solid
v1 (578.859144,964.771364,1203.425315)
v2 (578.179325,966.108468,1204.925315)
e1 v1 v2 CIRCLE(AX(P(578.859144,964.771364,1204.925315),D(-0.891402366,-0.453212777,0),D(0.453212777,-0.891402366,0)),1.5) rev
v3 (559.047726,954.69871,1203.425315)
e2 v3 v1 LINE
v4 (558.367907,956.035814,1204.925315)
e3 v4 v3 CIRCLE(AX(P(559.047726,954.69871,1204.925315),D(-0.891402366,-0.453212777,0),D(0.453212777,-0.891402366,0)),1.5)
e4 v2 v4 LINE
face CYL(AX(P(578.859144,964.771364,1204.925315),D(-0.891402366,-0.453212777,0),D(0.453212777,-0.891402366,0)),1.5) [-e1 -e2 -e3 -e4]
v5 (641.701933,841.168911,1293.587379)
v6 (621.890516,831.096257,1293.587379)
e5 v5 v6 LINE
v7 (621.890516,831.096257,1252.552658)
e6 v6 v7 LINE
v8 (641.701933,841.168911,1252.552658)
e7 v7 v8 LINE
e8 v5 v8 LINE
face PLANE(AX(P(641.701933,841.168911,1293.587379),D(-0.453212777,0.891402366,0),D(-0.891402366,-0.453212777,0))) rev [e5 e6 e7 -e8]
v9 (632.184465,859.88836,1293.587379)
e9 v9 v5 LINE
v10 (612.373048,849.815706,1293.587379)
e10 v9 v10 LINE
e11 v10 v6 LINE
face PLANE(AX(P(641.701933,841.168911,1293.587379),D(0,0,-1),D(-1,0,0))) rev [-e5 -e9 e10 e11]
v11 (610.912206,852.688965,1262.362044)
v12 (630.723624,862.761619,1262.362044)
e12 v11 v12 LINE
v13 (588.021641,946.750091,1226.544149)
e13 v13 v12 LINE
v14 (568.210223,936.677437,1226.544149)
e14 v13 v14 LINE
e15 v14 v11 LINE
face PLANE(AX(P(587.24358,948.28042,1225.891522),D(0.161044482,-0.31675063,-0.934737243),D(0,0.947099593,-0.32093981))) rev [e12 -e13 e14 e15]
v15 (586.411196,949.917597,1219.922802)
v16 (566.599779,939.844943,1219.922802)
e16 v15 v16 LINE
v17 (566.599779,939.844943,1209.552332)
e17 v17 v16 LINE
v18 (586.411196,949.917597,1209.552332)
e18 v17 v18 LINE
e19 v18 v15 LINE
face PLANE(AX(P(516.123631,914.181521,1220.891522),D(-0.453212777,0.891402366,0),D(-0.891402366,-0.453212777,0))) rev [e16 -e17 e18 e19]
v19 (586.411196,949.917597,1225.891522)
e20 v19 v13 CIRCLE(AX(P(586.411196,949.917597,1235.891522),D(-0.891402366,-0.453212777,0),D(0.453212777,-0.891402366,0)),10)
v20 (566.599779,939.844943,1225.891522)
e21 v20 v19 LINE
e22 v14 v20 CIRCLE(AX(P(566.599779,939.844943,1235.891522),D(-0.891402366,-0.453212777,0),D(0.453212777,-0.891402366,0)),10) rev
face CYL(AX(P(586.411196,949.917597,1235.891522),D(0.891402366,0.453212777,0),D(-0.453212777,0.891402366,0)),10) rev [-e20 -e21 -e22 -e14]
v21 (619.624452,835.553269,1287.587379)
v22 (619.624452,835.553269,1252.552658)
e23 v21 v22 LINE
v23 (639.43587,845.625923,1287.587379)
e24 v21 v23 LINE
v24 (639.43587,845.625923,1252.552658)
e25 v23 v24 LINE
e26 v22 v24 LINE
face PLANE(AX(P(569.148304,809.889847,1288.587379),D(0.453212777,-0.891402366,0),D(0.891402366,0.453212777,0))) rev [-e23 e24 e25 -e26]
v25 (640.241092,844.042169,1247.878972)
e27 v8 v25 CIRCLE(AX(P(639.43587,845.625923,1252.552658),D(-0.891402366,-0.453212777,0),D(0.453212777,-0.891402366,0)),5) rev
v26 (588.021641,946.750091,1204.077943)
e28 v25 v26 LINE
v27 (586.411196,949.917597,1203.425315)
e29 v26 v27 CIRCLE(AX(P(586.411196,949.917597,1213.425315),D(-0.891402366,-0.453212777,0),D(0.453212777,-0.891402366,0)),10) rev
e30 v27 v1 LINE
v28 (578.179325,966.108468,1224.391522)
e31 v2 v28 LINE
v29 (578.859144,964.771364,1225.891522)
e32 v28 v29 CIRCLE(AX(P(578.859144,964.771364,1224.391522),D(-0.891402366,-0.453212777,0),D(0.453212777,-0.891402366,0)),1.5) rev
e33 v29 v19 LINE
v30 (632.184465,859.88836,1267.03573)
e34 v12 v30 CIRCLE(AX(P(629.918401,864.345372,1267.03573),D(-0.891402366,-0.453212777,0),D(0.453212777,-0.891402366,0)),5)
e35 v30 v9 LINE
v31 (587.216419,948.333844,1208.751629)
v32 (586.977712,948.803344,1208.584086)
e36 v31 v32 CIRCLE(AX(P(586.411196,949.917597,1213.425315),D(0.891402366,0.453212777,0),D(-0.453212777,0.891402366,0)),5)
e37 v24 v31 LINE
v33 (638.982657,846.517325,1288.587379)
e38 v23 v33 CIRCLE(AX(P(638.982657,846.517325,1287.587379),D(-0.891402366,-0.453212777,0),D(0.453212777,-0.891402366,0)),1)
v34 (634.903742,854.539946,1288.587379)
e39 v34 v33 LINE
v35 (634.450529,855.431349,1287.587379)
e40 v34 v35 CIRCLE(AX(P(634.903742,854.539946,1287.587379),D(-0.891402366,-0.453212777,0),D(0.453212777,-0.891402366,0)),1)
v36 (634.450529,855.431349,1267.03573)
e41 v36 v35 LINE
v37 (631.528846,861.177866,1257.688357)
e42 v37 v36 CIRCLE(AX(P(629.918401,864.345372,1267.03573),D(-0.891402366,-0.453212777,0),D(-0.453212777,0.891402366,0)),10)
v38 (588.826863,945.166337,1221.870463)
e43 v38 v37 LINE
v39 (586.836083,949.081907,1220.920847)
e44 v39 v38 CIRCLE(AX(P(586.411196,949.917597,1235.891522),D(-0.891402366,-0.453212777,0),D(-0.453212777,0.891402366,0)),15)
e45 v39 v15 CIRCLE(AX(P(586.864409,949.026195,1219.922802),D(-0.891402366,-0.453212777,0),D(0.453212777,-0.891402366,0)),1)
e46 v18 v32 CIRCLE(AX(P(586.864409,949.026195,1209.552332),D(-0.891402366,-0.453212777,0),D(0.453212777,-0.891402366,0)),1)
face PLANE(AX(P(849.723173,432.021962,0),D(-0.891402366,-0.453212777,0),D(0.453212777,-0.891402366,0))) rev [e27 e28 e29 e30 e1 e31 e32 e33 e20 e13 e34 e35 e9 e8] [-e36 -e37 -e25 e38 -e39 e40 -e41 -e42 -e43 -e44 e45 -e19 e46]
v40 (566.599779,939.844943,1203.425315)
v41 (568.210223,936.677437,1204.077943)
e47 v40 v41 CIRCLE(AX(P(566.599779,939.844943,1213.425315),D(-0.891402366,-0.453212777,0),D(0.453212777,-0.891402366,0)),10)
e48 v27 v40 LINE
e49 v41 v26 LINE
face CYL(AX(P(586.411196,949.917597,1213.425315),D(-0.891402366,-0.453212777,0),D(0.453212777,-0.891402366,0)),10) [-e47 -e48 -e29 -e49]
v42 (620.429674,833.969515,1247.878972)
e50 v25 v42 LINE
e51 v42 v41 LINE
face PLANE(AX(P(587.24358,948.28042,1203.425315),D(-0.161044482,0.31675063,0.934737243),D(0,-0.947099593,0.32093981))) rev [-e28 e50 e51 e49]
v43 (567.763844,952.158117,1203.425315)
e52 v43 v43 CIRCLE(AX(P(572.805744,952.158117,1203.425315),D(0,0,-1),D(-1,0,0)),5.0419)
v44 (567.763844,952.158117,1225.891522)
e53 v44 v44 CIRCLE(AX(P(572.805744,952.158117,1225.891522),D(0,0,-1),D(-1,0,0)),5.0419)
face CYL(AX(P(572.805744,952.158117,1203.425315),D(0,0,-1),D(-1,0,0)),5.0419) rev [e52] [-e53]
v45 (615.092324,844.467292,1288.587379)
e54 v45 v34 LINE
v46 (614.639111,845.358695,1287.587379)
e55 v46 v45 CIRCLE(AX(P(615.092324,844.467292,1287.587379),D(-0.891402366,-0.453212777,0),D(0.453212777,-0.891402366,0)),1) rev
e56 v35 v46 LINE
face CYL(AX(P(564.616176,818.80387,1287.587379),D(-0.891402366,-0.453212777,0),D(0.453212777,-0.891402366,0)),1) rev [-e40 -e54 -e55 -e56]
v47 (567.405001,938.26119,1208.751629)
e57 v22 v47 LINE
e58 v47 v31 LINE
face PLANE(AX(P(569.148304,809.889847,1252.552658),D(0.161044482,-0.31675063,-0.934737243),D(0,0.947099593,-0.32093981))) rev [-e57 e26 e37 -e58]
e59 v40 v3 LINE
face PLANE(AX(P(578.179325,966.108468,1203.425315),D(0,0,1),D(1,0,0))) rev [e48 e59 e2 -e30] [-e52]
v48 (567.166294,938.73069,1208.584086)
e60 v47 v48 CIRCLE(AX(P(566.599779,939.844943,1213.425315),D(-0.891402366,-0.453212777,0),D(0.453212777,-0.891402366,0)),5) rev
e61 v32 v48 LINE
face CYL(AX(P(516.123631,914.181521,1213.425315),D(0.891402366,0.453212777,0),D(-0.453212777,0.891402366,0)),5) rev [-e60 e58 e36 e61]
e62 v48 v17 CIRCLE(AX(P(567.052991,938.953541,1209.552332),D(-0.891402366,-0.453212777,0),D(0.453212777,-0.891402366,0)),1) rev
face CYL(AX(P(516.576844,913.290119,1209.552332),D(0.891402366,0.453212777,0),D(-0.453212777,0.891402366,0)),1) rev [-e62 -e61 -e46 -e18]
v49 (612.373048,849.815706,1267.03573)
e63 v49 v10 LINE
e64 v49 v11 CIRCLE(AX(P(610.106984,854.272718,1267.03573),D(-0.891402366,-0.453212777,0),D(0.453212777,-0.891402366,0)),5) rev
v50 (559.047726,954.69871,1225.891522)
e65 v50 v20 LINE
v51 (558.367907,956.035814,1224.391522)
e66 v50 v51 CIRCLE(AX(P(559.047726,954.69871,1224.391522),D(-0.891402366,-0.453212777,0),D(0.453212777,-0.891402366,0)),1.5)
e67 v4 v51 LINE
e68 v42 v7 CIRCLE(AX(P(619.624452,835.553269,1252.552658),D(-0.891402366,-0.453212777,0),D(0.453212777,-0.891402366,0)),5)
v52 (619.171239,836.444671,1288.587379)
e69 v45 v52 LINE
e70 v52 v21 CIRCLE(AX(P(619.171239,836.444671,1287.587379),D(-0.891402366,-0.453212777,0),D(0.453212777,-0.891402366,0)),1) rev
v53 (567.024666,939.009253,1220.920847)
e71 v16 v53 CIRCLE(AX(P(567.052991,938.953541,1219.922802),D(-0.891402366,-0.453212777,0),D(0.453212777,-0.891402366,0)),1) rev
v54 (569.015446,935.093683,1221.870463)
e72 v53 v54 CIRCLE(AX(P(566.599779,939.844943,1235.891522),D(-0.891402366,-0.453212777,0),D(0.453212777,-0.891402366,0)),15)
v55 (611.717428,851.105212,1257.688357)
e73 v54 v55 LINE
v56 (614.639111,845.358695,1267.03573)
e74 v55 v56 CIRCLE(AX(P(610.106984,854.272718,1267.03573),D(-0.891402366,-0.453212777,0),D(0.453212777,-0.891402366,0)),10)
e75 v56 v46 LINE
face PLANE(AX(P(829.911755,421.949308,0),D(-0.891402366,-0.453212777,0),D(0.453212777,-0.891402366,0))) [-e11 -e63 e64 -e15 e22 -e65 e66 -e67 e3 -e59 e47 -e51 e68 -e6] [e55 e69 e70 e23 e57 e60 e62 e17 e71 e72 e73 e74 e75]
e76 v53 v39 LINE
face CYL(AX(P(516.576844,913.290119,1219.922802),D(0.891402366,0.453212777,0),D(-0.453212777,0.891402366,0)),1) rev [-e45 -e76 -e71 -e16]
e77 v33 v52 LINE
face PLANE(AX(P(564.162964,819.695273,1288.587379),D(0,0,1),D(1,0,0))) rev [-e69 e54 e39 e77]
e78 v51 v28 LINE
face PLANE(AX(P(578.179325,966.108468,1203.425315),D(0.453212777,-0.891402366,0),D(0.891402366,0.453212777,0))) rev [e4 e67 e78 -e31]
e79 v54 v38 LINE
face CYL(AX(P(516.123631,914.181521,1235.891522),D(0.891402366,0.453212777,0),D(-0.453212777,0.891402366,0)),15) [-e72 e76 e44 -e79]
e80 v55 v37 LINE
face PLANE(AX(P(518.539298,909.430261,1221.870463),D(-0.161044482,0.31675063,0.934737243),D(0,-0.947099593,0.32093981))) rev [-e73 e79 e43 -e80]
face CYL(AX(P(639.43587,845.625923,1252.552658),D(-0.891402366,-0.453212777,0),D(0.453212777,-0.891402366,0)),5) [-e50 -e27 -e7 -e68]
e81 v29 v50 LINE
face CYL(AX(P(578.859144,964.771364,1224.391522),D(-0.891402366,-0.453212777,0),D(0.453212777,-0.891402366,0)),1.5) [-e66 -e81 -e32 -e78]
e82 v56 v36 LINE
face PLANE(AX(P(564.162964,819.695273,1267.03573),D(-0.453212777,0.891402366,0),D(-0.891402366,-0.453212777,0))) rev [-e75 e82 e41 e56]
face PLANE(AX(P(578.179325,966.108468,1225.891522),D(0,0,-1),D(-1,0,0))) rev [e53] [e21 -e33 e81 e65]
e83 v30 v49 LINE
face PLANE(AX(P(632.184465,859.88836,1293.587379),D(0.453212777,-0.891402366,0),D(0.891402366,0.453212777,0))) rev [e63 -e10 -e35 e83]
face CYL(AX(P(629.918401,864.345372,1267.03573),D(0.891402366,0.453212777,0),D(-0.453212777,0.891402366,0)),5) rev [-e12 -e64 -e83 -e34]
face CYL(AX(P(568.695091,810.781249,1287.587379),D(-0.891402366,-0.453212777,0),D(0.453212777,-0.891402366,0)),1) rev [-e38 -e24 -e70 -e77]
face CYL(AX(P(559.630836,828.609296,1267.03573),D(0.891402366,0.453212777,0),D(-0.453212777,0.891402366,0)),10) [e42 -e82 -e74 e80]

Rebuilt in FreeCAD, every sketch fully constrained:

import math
import FreeCAD as App
import Part
import Sketcher
Q = App.Units.Quantity


def edges_at(feature, points):
    """Names of the edges that pass closest to the given points."""
    edges = feature.Shape.Edges
    near = lambda p: min(range(len(edges)), key=lambda i: edges[i].distToShape(Part.Vertex(*p))[0])
    return sorted({f"Edge{near(p) + 1}" for p in points})


def add_polygon(sketch, points):
    """Adds a closed chain of lines whose ends are joined by coincident constraints."""
    first, n = sketch.GeometryCount, len(points)
    for a, b in zip(points, points[1:] + points[:1]):
        sketch.addGeometry(Part.LineSegment(App.Vector(*a, 0), App.Vector(*b, 0)), False)
    for i in range(n):
        sketch.addConstraint(Sketcher.Constraint("Coincident", first + i, 2, first + (i + 1) % n, 1))

doc = App.newDocument("Part")
body = doc.addObject("PartDesign::Body", "Body")

# Sketch on an angled plane
sketch1 = body.newObject("Sketcher::SketchObject", "Sketch")
sketch1.Placement = App.Placement(App.Vector(839.854693, 426.912411, 0), App.Rotation(App.Vector(0, 0, -1), App.Vector(-0.453212777, 0.891402366, 0), App.Vector(0.891402366, 0.453212777, 0), "ZXY"))
add_polygon(sketch1, [(-1293.587379, 480.074586), (-1293.587379, 459.074586), (-1249.104307, 459.074586), (-1203.425315, 579.235261), (-1203.425315, 599.235261), (-1225.891522, 599.235261), (-1225.891522, 579.235261), (-1263.587379, 480.074586)])  # lines 0-7
sketch1.addConstraint(Sketcher.Constraint("Vertical", 0))
sketch1.addConstraint(Sketcher.Constraint("Horizontal", 1))
sketch1.addConstraint(Sketcher.Constraint("Vertical", 3))
sketch1.addConstraint(Sketcher.Constraint("Horizontal", 4))
sketch1.addConstraint(Sketcher.Constraint("Vertical", 5))
sketch1.addConstraint(Sketcher.Constraint("Horizontal", 7))
sketch1.addConstraint(Sketcher.Constraint("Parallel", 2, 6))
sketch1.addConstraint(Sketcher.Constraint("Horizontal", 2, 2, 5, 2))
sketch1.addConstraint(Sketcher.Constraint("DistanceX", 7, 2, 7, 1, Q("30 mm")))
sketch1.addConstraint(Sketcher.Constraint("DistanceY", 0, 2, 0, 1, Q("21 mm")))
sketch1.addConstraint(Sketcher.Constraint("DistanceY", 3, 1, 3, 2, Q("20 mm")))
sketch1.addConstraint(Sketcher.Constraint("DistanceX", 1, 1, 1, 2, Q("44.483072 mm")))
sketch1.addConstraint(Sketcher.Constraint("Distance", 6, Q("106.08401 mm")))
sketch1.addConstraint(Sketcher.Constraint("DistanceX", 4, 2, 4, 1, Q("22.466207 mm")))
sketch1.addConstraint(Sketcher.Constraint("DistanceX", 0, 2, -1, 1, Q("1293.587379 mm")))
sketch1.addConstraint(Sketcher.Constraint("DistanceY", -1, 1, 2, 2, Q("579.235261 mm")))
pad1 = body.newObject("PartDesign::Pad", "Pad")
pad1.Profile = sketch1
pad1.Length = 22.225
pad1.Midplane = True

# Sketch on XY plane
sketch2 = body.newObject("Sketcher::SketchObject", "Sketch001")
sketch2.AttachmentSupport = (doc.getObject("XY_Plane"), [""])
sketch2.MapMode = "FlatFace"
sketch2.AttachmentOffset = App.Placement(App.Vector(0, 0, 1203.425315), App.Rotation())
sketch2.addGeometry(Part.Circle(App.Vector(572.805744, 952.158117, 0), App.Vector(0, 0, 1), 5.0419), False)
sketch2.addConstraint(Sketcher.Constraint("Diameter", 0, Q("10.0838 mm")))
sketch2.addConstraint(Sketcher.Constraint("DistanceX", -1, 1, 0, 3, Q("572.805744 mm")))
sketch2.addConstraint(Sketcher.Constraint("DistanceY", -1, 1, 0, 3, Q("952.158117 mm")))
doc.recompute()
hole = body.newObject("PartDesign::Hole", "Hole")
hole.Profile = sketch2
hole.ThreadType = "None"
hole.Diameter = 10.0838
hole.DepthType = "ThroughAll"
hole.Reversed = True
doc.recompute()

fillet = body.newObject("PartDesign::Fillet", "Fillet")
fillet.Base = (hole, edges_at(hole, [(577.338, 943.244, 1225.892), (577.338, 943.244, 1203.425)]))
fillet.Radius = 10
doc.recompute()

fillet2 = body.newObject("PartDesign::Fillet", "Fillet001")
fillet2.Base = (fillet, edges_at(fillet, [(622.279, 854.852, 1263.587), (631.796, 836.133, 1249.104)]))
fillet2.Radius = 5
doc.recompute()

fillet3 = body.newObject("PartDesign::Fillet", "Fillet002")
fillet3.Base = (fillet2, edges_at(fillet2, [(568.274, 961.072, 1225.892), (568.274, 961.072, 1203.425)]))
fillet3.Radius = 1.5

# Sketch on an angled plane
sketch3 = body.newObject("Sketcher::SketchObject", "Sketch002")
sketch3.Placement = App.Placement(App.Vector(849.723173, 432.021962, 0), App.Rotation(App.Vector(0, 0, -1), App.Vector(-0.453212777, 0.891402366, 0), App.Vector(0.891402366, 0.453212777, 0), "ZXY"))
sketch3.addGeometry(Part.LineSegment(App.Vector(-1208.425315, 580.989747, 0), App.Vector(-1220.891522, 580.989747, 0)), False)
sketch3.addGeometry(Part.ArcOfCircle(Part.Circle(App.Vector(-1235.891522, 580.989747, 0), App.Vector(0, 0, 1), 15), math.radians(-20.814264), math.radians(0)), False)
sketch3.addGeometry(Part.LineSegment(App.Vector(-1221.870463, 575.659651, 0), App.Vector(-1257.688357, 481.439045, 0)), False)
sketch3.addGeometry(Part.ArcOfCircle(Part.Circle(App.Vector(-1267.03573, 484.992442, 0), App.Vector(0, 0, 1), 10), math.radians(-90), math.radians(-20.814264)), False)
sketch3.addGeometry(Part.LineSegment(App.Vector(-1267.03573, 474.992442, 0), App.Vector(-1288.587379, 474.992442, 0)), False)
sketch3.addGeometry(Part.LineSegment(App.Vector(-1288.587379, 474.992442, 0), App.Vector(-1288.587379, 463.992442, 0)), False)
sketch3.addGeometry(Part.LineSegment(App.Vector(-1288.587379, 463.992442, 0), App.Vector(-1252.552658, 463.992442, 0)), False)
sketch3.addGeometry(Part.LineSegment(App.Vector(-1252.552658, 463.992442, 0), App.Vector(-1208.751629, 579.213048, 0)), False)
sketch3.addGeometry(Part.ArcOfCircle(Part.Circle(App.Vector(-1213.425315, 580.989747, 0), App.Vector(0, 0, 1), 5), math.radians(-20.814264), math.radians(0)), False)
sketch3.addConstraint(Sketcher.Constraint("Coincident", 0, 2, 1, 2))
sketch3.addConstraint(Sketcher.Constraint("Tangent", 1, 1, 2, 1))
sketch3.addConstraint(Sketcher.Constraint("Tangent", 2, 2, 3, 2))
sketch3.addConstraint(Sketcher.Constraint("Tangent", 3, 1, 4, 1))
sketch3.addConstraint(Sketcher.Constraint("Coincident", 4, 2, 5, 1))
sketch3.addConstraint(Sketcher.Constraint("Coincident", 5, 2, 6, 1))
sketch3.addConstraint(Sketcher.Constraint("Coincident", 6, 2, 7, 1))
sketch3.addConstraint(Sketcher.Constraint("Tangent", 7, 2, 8, 1))
sketch3.addConstraint(Sketcher.Constraint("Coincident", 8, 2, 0, 1))
sketch3.addConstraint(Sketcher.Constraint("Horizontal", 0))
sketch3.addConstraint(Sketcher.Constraint("Horizontal", 4))
sketch3.addConstraint(Sketcher.Constraint("Vertical", 5))
sketch3.addConstraint(Sketcher.Constraint("Horizontal", 6))
sketch3.addConstraint(Sketcher.Constraint("Parallel", 2, 7))
sketch3.addConstraint(Sketcher.Constraint("Horizontal", 1, 3, 8, 3))
sketch3.addConstraint(Sketcher.Constraint("Horizontal", 8, 3, 0, 2))
sketch3.addConstraint(Sketcher.Constraint("Radius", 1, Q("15 mm")))
sketch3.addConstraint(Sketcher.Constraint("Radius", 3, Q("10 mm")))
sketch3.addConstraint(Sketcher.Constraint("Radius", 8, Q("5 mm")))
sketch3.addConstraint(Sketcher.Constraint("DistanceY", 5, 2, 5, 1, Q("11 mm")))
sketch3.addConstraint(Sketcher.Constraint("DistanceX", 4, 2, 4, 1, Q("21.55165 mm")))
sketch3.addConstraint(Sketcher.Constraint("DistanceX", 6, 1, 6, 2, Q("36.034721 mm")))
sketch3.addConstraint(Sketcher.Constraint("DistanceY", 2, 2, 1, 3, Q("99.550702 mm")))
sketch3.addConstraint(Sketcher.Constraint("DistanceX", 2, 2, 6, 2, Q("5.1357 mm")))
sketch3.addConstraint(Sketcher.Constraint("DistanceX", 1, 3, -1, 1, Q("1235.891522 mm")))
sketch3.addConstraint(Sketcher.Constraint("DistanceY", -1, 1, 3, 3, Q("484.992442 mm")))
pocket1 = body.newObject("PartDesign::Pocket", "Pocket")
pocket1.Profile = sketch3
pocket1.Type = "UpToFirst"
doc.recompute()

fillet4 = body.newObject("PartDesign::Fillet", "Fillet003")
fillet4.Base = (pocket1, edges_at(pocket1, [
    (576.505, 944.881, 1208.425),
    (629.53, 840.59, 1288.587),
    (624.545, 850.395, 1288.587),
    (576.505, 944.881, 1220.892),
]))
fillet4.Radius = 1

doc.recompute()
